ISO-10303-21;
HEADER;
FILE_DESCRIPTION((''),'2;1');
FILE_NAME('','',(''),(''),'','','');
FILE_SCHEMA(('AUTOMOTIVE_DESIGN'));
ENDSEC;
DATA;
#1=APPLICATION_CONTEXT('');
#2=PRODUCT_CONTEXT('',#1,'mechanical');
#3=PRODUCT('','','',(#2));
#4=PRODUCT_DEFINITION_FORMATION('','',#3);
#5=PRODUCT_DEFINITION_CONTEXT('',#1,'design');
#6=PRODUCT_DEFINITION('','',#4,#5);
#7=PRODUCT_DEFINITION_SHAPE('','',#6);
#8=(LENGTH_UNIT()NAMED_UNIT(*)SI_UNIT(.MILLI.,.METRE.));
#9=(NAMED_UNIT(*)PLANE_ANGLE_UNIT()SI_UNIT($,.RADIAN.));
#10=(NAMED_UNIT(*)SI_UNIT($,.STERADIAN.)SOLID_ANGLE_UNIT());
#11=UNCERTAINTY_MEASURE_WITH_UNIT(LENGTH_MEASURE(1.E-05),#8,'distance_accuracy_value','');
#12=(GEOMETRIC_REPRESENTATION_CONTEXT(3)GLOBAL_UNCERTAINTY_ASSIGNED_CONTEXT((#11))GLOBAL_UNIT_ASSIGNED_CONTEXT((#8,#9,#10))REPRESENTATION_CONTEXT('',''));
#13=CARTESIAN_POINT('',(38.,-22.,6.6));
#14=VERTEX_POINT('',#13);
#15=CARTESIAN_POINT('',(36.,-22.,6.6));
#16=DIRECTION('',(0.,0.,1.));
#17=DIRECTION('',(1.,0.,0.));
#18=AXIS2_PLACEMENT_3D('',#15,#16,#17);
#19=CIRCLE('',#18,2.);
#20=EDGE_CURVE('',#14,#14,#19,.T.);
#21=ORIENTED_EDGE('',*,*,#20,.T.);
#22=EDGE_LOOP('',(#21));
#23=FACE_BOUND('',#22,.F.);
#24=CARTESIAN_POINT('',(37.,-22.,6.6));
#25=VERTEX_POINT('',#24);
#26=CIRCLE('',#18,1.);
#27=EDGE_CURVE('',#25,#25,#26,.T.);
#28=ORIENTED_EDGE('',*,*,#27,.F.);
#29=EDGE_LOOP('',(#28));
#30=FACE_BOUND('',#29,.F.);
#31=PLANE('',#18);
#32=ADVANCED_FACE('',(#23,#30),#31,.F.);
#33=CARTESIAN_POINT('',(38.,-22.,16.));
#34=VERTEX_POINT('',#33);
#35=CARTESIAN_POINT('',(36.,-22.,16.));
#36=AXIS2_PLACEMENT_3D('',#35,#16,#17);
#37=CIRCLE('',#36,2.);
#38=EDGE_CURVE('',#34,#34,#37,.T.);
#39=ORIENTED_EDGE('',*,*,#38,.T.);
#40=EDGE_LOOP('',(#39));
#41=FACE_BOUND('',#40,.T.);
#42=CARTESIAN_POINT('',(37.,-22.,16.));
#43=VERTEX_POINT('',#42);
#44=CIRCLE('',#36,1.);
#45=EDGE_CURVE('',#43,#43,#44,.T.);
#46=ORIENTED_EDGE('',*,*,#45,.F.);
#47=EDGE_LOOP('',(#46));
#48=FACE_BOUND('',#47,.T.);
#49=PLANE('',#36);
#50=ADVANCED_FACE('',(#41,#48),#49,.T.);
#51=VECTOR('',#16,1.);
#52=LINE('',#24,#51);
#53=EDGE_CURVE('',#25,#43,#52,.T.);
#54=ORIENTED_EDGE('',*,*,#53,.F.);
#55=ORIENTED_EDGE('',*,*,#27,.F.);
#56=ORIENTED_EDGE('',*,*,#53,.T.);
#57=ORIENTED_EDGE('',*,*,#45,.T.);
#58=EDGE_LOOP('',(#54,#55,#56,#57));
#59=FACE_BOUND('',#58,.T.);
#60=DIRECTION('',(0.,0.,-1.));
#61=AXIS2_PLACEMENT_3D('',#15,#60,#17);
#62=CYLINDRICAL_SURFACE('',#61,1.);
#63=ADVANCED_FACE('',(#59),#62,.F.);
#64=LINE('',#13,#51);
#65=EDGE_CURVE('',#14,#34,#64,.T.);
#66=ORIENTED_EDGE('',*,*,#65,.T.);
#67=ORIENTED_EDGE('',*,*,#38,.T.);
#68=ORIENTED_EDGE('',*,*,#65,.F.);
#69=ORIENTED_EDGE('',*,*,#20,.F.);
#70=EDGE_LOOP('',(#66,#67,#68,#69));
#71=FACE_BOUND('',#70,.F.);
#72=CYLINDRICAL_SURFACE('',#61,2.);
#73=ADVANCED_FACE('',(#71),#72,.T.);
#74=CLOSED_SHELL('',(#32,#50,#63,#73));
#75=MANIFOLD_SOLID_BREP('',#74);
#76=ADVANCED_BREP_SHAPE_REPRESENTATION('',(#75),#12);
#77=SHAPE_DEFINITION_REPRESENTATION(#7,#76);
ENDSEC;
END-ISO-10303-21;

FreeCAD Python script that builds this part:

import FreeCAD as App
import Part
import Sketcher
Q = App.Units.Quantity

doc = App.newDocument("Part")
body = doc.addObject("PartDesign::Body", "Body")

# Sketch on XY plane
sketch1 = body.newObject("Sketcher::SketchObject", "Sketch")
sketch1.AttachmentSupport = (doc.getObject("XY_Plane"), [""])
sketch1.MapMode = "FlatFace"
sketch1.AttachmentOffset = App.Placement(App.Vector(0, 0, 6.6), App.Rotation())
sketch1.addGeometry(Part.Circle(App.Vector(36, -22, 0), App.Vector(0, 0, 1), 1), False)
sketch1.addConstraint(Sketcher.Constraint("Diameter", 0, Q("2 mm")))
sketch1.addConstraint(Sketcher.Constraint("DistanceX", -1, 1, 0, 3, Q("36 mm")))
sketch1.addConstraint(Sketcher.Constraint("DistanceY", 0, 3, -1, 1, Q("22 mm")))
pad1 = body.newObject("PartDesign::Pad", "Pad")
pad1.Profile = sketch1
pad1.Length = 9.4
body2 = doc.addObject("PartDesign::Body", "Body001")

# Sketch on XY plane
sketch2 = body2.newObject("Sketcher::SketchObject", "Sketch001")
sketch2.AttachmentSupport = (doc.getObject("XY_Plane001"), [""])
sketch2.MapMode = "FlatFace"
sketch2.AttachmentOffset = App.Placement(App.Vector(0, 0, 6.6), App.Rotation())
sketch2.addGeometry(Part.Circle(App.Vector(36, -22, 0), App.Vector(0, 0, 1), 2), False)
sketch2.addConstraint(Sketcher.Constraint("Diameter", 0, Q("4 mm")))
sketch2.addConstraint(Sketcher.Constraint("DistanceX", -1, 1, 0, 3, Q("36 mm")))
sketch2.addConstraint(Sketcher.Constraint("DistanceY", 0, 3, -1, 1, Q("22 mm")))
pad2 = body2.newObject("PartDesign::Pad", "Pad001")
pad2.Profile = sketch2
pad2.Length = 9.4
doc.recompute()

boolean = body2.newObject("PartDesign::Boolean", "Boolean")
boolean.Type = "Cut"
boolean.addObjects([body])

doc.recompute()
